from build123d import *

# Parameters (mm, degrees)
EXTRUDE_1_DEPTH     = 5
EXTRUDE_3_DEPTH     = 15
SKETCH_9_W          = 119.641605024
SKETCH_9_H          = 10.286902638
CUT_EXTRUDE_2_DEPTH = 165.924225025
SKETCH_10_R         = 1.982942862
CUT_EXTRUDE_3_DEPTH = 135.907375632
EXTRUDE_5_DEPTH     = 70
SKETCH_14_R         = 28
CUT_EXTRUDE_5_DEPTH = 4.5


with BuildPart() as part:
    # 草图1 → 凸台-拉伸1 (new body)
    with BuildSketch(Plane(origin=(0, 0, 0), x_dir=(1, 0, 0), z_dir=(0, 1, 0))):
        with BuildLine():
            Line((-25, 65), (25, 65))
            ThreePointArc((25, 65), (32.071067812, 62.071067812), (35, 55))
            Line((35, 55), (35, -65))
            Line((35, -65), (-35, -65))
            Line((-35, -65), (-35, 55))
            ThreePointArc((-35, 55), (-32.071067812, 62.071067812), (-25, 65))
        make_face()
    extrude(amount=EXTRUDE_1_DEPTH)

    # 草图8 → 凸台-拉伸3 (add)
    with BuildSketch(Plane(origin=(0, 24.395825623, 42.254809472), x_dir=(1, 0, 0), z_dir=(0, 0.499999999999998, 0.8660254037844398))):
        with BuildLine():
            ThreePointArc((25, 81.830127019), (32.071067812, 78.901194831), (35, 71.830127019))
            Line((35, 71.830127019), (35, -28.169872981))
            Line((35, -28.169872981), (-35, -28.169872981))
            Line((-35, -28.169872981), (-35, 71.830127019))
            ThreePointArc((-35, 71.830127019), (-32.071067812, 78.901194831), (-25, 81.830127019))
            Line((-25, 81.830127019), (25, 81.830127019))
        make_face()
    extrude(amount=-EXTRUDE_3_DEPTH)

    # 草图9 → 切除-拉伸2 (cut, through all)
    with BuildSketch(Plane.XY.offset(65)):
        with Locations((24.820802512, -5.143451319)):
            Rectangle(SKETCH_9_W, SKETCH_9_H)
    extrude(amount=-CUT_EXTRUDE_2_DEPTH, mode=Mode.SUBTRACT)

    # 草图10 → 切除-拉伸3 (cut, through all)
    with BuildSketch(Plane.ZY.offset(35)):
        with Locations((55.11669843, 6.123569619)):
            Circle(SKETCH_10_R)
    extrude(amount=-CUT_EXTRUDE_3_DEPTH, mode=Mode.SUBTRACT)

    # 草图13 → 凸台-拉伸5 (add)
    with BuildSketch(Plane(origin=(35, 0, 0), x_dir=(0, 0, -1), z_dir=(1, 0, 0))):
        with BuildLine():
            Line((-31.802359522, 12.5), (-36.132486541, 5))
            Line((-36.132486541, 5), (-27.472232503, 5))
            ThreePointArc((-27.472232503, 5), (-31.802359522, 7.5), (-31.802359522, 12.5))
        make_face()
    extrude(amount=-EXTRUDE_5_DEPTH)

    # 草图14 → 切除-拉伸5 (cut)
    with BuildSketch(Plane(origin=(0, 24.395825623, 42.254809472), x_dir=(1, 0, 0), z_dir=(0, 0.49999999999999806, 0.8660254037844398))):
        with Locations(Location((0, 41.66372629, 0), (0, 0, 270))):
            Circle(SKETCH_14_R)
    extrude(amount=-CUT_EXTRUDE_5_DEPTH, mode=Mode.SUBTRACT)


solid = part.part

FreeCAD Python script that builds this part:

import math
import FreeCAD as App
import Part
import Sketcher

V = App.Vector
Q = App.Units.Quantity


def add_polygon(sketch, points):
    """Adds a closed chain of lines whose ends are joined by coincident constraints."""
    first, n = sketch.GeometryCount, len(points)
    for a, b in zip(points, points[1:] + points[:1]):
        sketch.addGeometry(Part.LineSegment(App.Vector(*a, 0), App.Vector(*b, 0)), False)
    for i in range(n):
        sketch.addConstraint(Sketcher.Constraint("Coincident", first + i, 2, first + (i + 1) % n, 1))

doc = App.newDocument("Part")
body = doc.addObject("PartDesign::Body", "Body")

# Sketch on XZ plane
sketch1 = body.newObject("Sketcher::SketchObject", "Sketch")
sketch1.AttachmentSupport = (doc.getObject("XZ_Plane"), [""])
sketch1.MapMode = "FlatFace"
sketch1.addGeometry([
    Part.LineSegment(V(25, -65, 0), V(-25, -65, 0)),  # 0
    Part.ArcOfCircle(Part.Circle(V(-25, -55, 0), V(0, 0, 1), 10), math.radians(180), math.radians(270)),  # 1
    Part.LineSegment(V(-35, -55, 0), V(-35, 65, 0)),  # 2
    Part.LineSegment(V(-35, 65, 0), V(35, 65, 0)),  # 3
    Part.LineSegment(V(35, 65, 0), V(35, -55, 0)),  # 4
    Part.ArcOfCircle(Part.Circle(V(25, -55, 0), V(0, 0, 1), 10), math.radians(-90), math.radians(0)),  # 5
], False)
sketch1.addConstraint([
    Sketcher.Constraint("Tangent", 0, 2, 1, 2),
    Sketcher.Constraint("Tangent", 1, 1, 2, 1),
    Sketcher.Constraint("Coincident", 2, 2, 3, 1),
    Sketcher.Constraint("Coincident", 3, 2, 4, 1),
    Sketcher.Constraint("Tangent", 4, 2, 5, 2),
    Sketcher.Constraint("Tangent", 5, 1, 0, 1),
    Sketcher.Constraint("Horizontal", 0),
    Sketcher.Constraint("Vertical", 2),
    Sketcher.Constraint("Horizontal", 3),
    Sketcher.Constraint("Vertical", 4),
    Sketcher.Constraint("Equal", 1, 5),
    Sketcher.Constraint("Radius", 1, Q("10 mm")),
    Sketcher.Constraint("DistanceX", 0, 2, 0, 1, Q("50 mm")),
    Sketcher.Constraint("DistanceY", 2, 1, 2, 2, Q("120 mm")),
    Sketcher.Constraint("DistanceX", 1, 3, -1, 1, Q("25 mm")),
    Sketcher.Constraint("DistanceY", 1, 3, -1, 1, Q("55 mm")),
])
pad1 = body.newObject("PartDesign::Pad", "Pad")
pad1.Profile = sketch1
pad1.Length = 5
pad1.Reversed = True

# Sketch on an angled plane
sketch2 = body.newObject("Sketcher::SketchObject", "Sketch001")
sketch2.Placement = App.Placement(V(0, 24.395826, 42.254809), App.Rotation(V(1, 0, 0), V(0, 0.866025404, -0.5), V(0, 0.5, 0.866025404), "ZXY"))
sketch2.addGeometry([
    Part.ArcOfCircle(Part.Circle(V(25, 72, 0), V(0, 0, 1), 10), math.radians(0), math.radians(90)),  # 0
    Part.LineSegment(V(25, 82, 0), V(-25, 82, 0)),  # 1
    Part.ArcOfCircle(Part.Circle(V(-25, 72, 0), V(0, 0, 1), 10), math.radians(90), math.radians(180)),  # 2
    Part.LineSegment(V(-35, 72, 0), V(-35, -28, 0)),  # 3
    Part.LineSegment(V(-35, -28, 0), V(35, -28, 0)),  # 4
    Part.LineSegment(V(35, -28, 0), V(35, 72, 0)),  # 5
], False)
sketch2.addConstraint([
    Sketcher.Constraint("Tangent", 0, 2, 1, 1),
    Sketcher.Constraint("Tangent", 1, 2, 2, 1),
    Sketcher.Constraint("Tangent", 2, 2, 3, 1),
    Sketcher.Constraint("Coincident", 3, 2, 4, 1),
    Sketcher.Constraint("Coincident", 4, 2, 5, 1),
    Sketcher.Constraint("Tangent", 5, 2, 0, 1),
    Sketcher.Constraint("Horizontal", 1),
    Sketcher.Constraint("Vertical", 3),
    Sketcher.Constraint("Horizontal", 4),
    Sketcher.Constraint("Vertical", 5),
    Sketcher.Constraint("Equal", 0, 2),
    Sketcher.Constraint("Radius", 0, Q("10 mm")),
    Sketcher.Constraint("DistanceX", 1, 2, 1, 1, Q("50 mm")),
    Sketcher.Constraint("DistanceY", 3, 2, 3, 1, Q("100 mm")),
    Sketcher.Constraint("DistanceX", -1, 1, 0, 3, Q("25 mm")),
    Sketcher.Constraint("DistanceY", -1, 1, 0, 3, Q("71.830127 mm")),
])
pad2 = body.newObject("PartDesign::Pad", "Pad001")
pad2.Profile = sketch2
pad2.Length = 15
pad2.Reversed = True

# Sketch on XY plane
sketch3 = body.newObject("Sketcher::SketchObject", "Sketch002")
sketch3.AttachmentSupport = (doc.getObject("XY_Plane"), [""])
sketch3.MapMode = "FlatFace"
sketch3.AttachmentOffset = App.Placement(V(0, 0, 65), App.Rotation())
add_polygon(sketch3, [(-35, 0), (-35, -10), (85, -10), (85, 0)])  # lines 0-3
sketch3.addConstraint([
    Sketcher.Constraint("Vertical", 0),
    Sketcher.Constraint("Horizontal", 1),
    Sketcher.Constraint("Vertical", 2),
    Sketcher.Constraint("Horizontal", 3),
    Sketcher.Constraint("PointOnObject", 2, 2, -1),
    Sketcher.Constraint("DistanceX", 0, 2, -1, 1, Q("35 mm")),
    Sketcher.Constraint("DistanceX", 1, 1, 1, 2, Q("119.641605 mm")),
    Sketcher.Constraint("DistanceY", 0, 2, 0, 1, Q("10.286903 mm")),
])
pocket1 = body.newObject("PartDesign::Pocket", "Pocket")
pocket1.Profile = sketch3
pocket1.Type = "ThroughAll"

# Sketch on YZ plane
sketch4 = body.newObject("Sketcher::SketchObject", "Sketch003")
sketch4.AttachmentSupport = (doc.getObject("YZ_Plane"), [""])
sketch4.MapMode = "FlatFace"
sketch4.AttachmentOffset = App.Placement(V(0, 0, -35), App.Rotation())
sketch4.addGeometry(Part.Circle(V(6.1, 55.1, 0), V(0, 0, 1), 2), False)
sketch4.addConstraint([
    Sketcher.Constraint("Diameter", 0, Q("3.965886 mm")),
    Sketcher.Constraint("DistanceY", -1, 1, 0, 3, Q("55.116698 mm")),
    Sketcher.Constraint("DistanceX", -1, 1, 0, 3, Q("6.12357 mm")),
])
pocket2 = body.newObject("PartDesign::Pocket", "Pocket001")
pocket2.Profile = sketch4
pocket2.Type = "ThroughAll"
pocket2.Reversed = True

# Sketch on YZ plane
sketch5 = body.newObject("Sketcher::SketchObject", "Sketch004")
sketch5.AttachmentSupport = (doc.getObject("YZ_Plane"), [""])
sketch5.MapMode = "FlatFace"
sketch5.AttachmentOffset = App.Placement(V(0, 0, 35), App.Rotation())
sketch5.addGeometry([
    Part.LineSegment(V(12, 32, 0), V(5, 36, 0)),
    Part.LineSegment(V(5, 36, 0), V(5, 27, 0)),
    Part.ArcOfCircle(Part.Circle(V(10, 27, 0), V(0, 0, 1), 5), math.radians(60), math.radians(180)),
], False)
sketch5.addConstraint([
    Sketcher.Constraint("Coincident", 0, 2, 1, 1),
    Sketcher.Constraint("Tangent", 1, 2, 2, 2),
    Sketcher.Constraint("Tangent", 2, 1, 0, 1),
    Sketcher.Constraint("Vertical", 1),
    Sketcher.Constraint("Radius", 2, Q("5 mm")),
    Sketcher.Constraint("Angle", 0, Q("150 deg")),
    Sketcher.Constraint("DistanceX", -1, 1, 2, 3, Q("10 mm")),
    Sketcher.Constraint("DistanceY", -1, 1, 2, 1, Q("31.80236 mm")),
])
pad3 = body.newObject("PartDesign::Pad", "Pad002")
pad3.Profile = sketch5
pad3.Length = 70
pad3.Reversed = True

# Sketch on an angled plane
sketch6 = body.newObject("Sketcher::SketchObject", "Sketch005")
sketch6.Placement = App.Placement(V(0, 24.395826, 42.254809), App.Rotation(V(1, 0, 0), V(0, 0.866025404, -0.5), V(0, 0.5, 0.866025404), "ZXY"))
sketch6.addGeometry(Part.Circle(V(0, 42, 0), V(0, 0, 1), 28), False)
sketch6.addConstraint([
    Sketcher.Constraint("PointOnObject", 0, 3, -2),
    Sketcher.Constraint("Diameter", 0, Q("56 mm")),
    Sketcher.Constraint("DistanceY", -1, 1, 0, 3, Q("41.663726 mm")),
])
pocket3 = body.newObject("PartDesign::Pocket", "Pocket002")
pocket3.Profile = sketch6
pocket3.Length = 4.5

doc.recompute()
